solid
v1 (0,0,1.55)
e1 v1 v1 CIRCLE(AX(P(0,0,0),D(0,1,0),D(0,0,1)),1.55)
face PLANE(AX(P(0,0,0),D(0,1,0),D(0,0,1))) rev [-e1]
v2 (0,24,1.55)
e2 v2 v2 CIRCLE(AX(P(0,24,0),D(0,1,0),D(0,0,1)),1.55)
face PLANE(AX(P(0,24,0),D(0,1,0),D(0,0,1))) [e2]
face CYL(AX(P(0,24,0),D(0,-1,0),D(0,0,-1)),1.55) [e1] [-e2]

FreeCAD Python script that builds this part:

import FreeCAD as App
import Part
import Sketcher

V = App.Vector
Q = App.Units.Quantity

doc = App.newDocument("Part")
body = doc.addObject("PartDesign::Body", "Body")

sketch1 = body.newObject("Sketcher::SketchObject", "Sketch")
sketch1.AttachmentSupport = (doc.getObject("XZ_Plane"), [""])
sketch1.MapMode = "FlatFace"
sketch1.addGeometry(Part.Circle(V(0, 0, 0), V(0, 0, 1), 1.6), False)
sketch1.addConstraint([
    Sketcher.Constraint("Coincident", 0, 3, -1, 1),
    Sketcher.Constraint("Diameter", 0, Q("3.1 mm")),
])
pad1 = body.newObject("PartDesign::Pad", "Pad")
pad1.Profile = sketch1
pad1.Length = 24
pad1.Reversed = True

doc.recompute()
